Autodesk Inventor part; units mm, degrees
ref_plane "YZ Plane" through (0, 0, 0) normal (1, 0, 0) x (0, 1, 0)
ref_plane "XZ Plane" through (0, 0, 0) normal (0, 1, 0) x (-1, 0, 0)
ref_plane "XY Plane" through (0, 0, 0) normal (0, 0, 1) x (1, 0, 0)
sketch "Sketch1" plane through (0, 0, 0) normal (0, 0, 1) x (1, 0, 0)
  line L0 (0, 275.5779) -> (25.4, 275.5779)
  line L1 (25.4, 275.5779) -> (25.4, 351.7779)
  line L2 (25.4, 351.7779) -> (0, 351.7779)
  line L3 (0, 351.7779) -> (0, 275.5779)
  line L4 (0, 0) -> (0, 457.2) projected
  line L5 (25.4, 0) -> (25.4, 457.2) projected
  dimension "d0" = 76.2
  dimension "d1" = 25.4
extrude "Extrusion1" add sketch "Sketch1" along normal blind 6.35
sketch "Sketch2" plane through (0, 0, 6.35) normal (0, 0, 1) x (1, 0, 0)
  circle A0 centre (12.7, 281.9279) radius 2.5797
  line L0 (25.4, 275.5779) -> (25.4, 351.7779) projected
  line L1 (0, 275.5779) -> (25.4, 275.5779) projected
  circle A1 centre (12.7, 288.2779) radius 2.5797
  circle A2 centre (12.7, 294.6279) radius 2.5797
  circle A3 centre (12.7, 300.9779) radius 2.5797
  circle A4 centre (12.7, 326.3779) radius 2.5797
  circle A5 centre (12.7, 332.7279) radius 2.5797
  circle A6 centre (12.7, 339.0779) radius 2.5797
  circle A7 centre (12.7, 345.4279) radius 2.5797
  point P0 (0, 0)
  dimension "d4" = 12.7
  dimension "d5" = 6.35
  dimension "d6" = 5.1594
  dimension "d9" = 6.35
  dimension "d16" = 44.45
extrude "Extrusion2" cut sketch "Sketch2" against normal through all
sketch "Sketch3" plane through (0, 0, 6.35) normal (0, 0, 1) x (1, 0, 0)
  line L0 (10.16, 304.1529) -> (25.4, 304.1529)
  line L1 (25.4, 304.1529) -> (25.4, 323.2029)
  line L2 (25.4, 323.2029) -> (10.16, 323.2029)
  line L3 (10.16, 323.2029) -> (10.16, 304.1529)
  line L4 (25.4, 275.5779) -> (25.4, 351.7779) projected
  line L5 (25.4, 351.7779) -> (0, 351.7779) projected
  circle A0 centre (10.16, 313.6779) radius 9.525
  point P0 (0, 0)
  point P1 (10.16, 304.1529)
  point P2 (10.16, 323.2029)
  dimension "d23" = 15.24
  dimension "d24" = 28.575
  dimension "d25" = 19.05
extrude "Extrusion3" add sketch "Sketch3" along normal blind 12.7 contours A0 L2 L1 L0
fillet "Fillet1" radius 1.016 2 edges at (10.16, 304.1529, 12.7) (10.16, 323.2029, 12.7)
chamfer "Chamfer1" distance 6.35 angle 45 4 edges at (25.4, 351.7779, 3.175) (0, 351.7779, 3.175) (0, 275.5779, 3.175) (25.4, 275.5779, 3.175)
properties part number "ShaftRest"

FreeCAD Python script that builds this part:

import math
import FreeCAD as App
import Part
import Sketcher

V = App.Vector
Q = App.Units.Quantity


def edges_at(feature, points):
    """Names of the edges that pass closest to the given points."""
    edges = feature.Shape.Edges
    near = lambda p: min(range(len(edges)), key=lambda i: edges[i].distToShape(Part.Vertex(*p))[0])
    return sorted({f"Edge{near(p) + 1}" for p in points})


def add_polygon(sketch, points):
    """Adds a closed chain of lines whose ends are joined by coincident constraints."""
    first, n = sketch.GeometryCount, len(points)
    for a, b in zip(points, points[1:] + points[:1]):
        sketch.addGeometry(Part.LineSegment(App.Vector(*a, 0), App.Vector(*b, 0)), False)
    for i in range(n):
        sketch.addConstraint(Sketcher.Constraint("Coincident", first + i, 2, first + (i + 1) % n, 1))

doc = App.newDocument("Part")
body = doc.addObject("PartDesign::Body", "Body")

# Sketch on XY plane
sketch1 = body.newObject("Sketcher::SketchObject", "Sketch")
sketch1.AttachmentSupport = (doc.getObject("XY_Plane"), [""])
sketch1.MapMode = "FlatFace"
add_polygon(sketch1, [(0, 352), (0, 276), (25, 276), (25, 352)])  # lines 0-3
sketch1.addConstraint([
    Sketcher.Constraint("Vertical", 0),
    Sketcher.Constraint("Horizontal", 1),
    Sketcher.Constraint("Vertical", 2),
    Sketcher.Constraint("Horizontal", 3),
    Sketcher.Constraint("PointOnObject", 0, 2, -2),
    Sketcher.Constraint("DistanceX", 1, 1, 1, 2, Q("1 in")),
    Sketcher.Constraint("DistanceY", 0, 2, 0, 1, Q("3 in")),
    Sketcher.Constraint("DistanceY", -1, 1, 0, 2, Q("275.578 mm")),
])
pad1 = body.newObject("PartDesign::Pad", "Pad")
pad1.Profile = sketch1
pad1.Length = Q("0.25 in")

# Sketch on XY plane
sketch2 = body.newObject("Sketcher::SketchObject", "Sketch001")
sketch2.AttachmentSupport = (doc.getObject("XY_Plane"), [""])
sketch2.MapMode = "FlatFace"
sketch2.AttachmentOffset = App.Placement(V(0, 0, 0.25 * 25.4), App.Rotation())
sketch2.addGeometry([
    Part.Circle(V(12.7, 281.9, 0), V(0, 0, 1), 2.6),  # 0
    Part.Circle(V(12.7, 288.3, 0), V(0, 0, 1), 2.6),  # 1
    Part.Circle(V(12.7, 294.6, 0), V(0, 0, 1), 2.6),  # 2
    Part.Circle(V(12.7, 301, 0), V(0, 0, 1), 2.6),  # 3
    Part.Circle(V(12.7, 326.4, 0), V(0, 0, 1), 2.6),  # 4
    Part.Circle(V(12.7, 332.7, 0), V(0, 0, 1), 2.6),  # 5
    Part.Circle(V(12.7, 339.1, 0), V(0, 0, 1), 2.6),  # 6
    Part.Circle(V(12.7, 345.4, 0), V(0, 0, 1), 2.6),  # 7
], False)
sketch2.addConstraint([
    Sketcher.Constraint("Equal", 0, 1),
    Sketcher.Constraint("Equal", 1, 2),
    Sketcher.Constraint("Equal", 2, 3),
    Sketcher.Constraint("Equal", 3, 4),
    Sketcher.Constraint("Equal", 4, 5),
    Sketcher.Constraint("Equal", 5, 6),
    Sketcher.Constraint("Equal", 6, 7),
    Sketcher.Constraint("Vertical", 0, 3, 1, 3),
    Sketcher.Constraint("Vertical", 1, 3, 2, 3),
    Sketcher.Constraint("Vertical", 2, 3, 3, 3),
    Sketcher.Constraint("Vertical", 3, 3, 4, 3),
    Sketcher.Constraint("Vertical", 4, 3, 5, 3),
    Sketcher.Constraint("Vertical", 5, 3, 6, 3),
    Sketcher.Constraint("Vertical", 6, 3, 7, 3),
    Sketcher.Constraint("Diameter", 0, Q("0.203126 in")),
    Sketcher.Constraint("DistanceY", 3, 3, 4, 3, Q("1 in")),
    Sketcher.Constraint("DistanceX", -1, 1, 0, 3, Q("0.5 in")),
    Sketcher.Constraint("DistanceY", 0, 3, 2, 3, Q("0.5 in")),
    Sketcher.Constraint("DistanceY", 1, 3, 3, 3, Q("0.5 in")),
    Sketcher.Constraint("DistanceY", 4, 3, 6, 3, Q("0.5 in")),
    Sketcher.Constraint("DistanceY", 5, 3, 7, 3, Q("0.5 in")),
    Sketcher.Constraint("DistanceY", 0, 3, 1, 3, Q("0.25 in")),
    Sketcher.Constraint("DistanceY", 4, 3, 5, 3, Q("0.25 in")),
    Sketcher.Constraint("DistanceY", -1, 1, 0, 3, Q("281.928 mm")),
])
pocket1 = body.newObject("PartDesign::Pocket", "Pocket")
pocket1.Profile = sketch2
pocket1.Type = "ThroughAll"

# Sketch on XY plane
sketch3 = body.newObject("Sketcher::SketchObject", "Sketch002")
sketch3.AttachmentSupport = (doc.getObject("XY_Plane"), [""])
sketch3.MapMode = "FlatFace"
sketch3.AttachmentOffset = App.Placement(V(0, 0, 0.25 * 25.4), App.Rotation())
sketch3.addGeometry([
    Part.ArcOfCircle(Part.Circle(V(10, 314, 0), V(0, 0, 1), 10), math.radians(-90), math.radians(90)),
    Part.LineSegment(V(10, 304, 0), V(25, 304, 0)),
    Part.LineSegment(V(25, 304, 0), V(25, 323, 0)),
    Part.LineSegment(V(25, 323, 0), V(10, 323, 0)),
], False)
sketch3.addConstraint([
    Sketcher.Constraint("Tangent", 0, 1, 1, 1),
    Sketcher.Constraint("Coincident", 1, 2, 2, 1),
    Sketcher.Constraint("Coincident", 2, 2, 3, 1),
    Sketcher.Constraint("Tangent", 3, 2, 0, 2),
    Sketcher.Constraint("Horizontal", 1),
    Sketcher.Constraint("Vertical", 2),
    Sketcher.Constraint("Horizontal", 3),
    Sketcher.Constraint("DistanceX", 1, 1, 1, 2, Q("0.6 in")),
    Sketcher.Constraint("Radius", 0, Q("0.375 in")),
    Sketcher.Constraint("DistanceX", -1, 1, 1, 2, Q("1 in")),
    Sketcher.Constraint("DistanceY", -1, 1, 0, 3, Q("313.678 mm")),
])
pad2 = body.newObject("PartDesign::Pad", "Pad001")
pad2.Profile = sketch3
pad2.Length = Q("0.5 in")
doc.recompute()

fillet = body.newObject("PartDesign::Fillet", "Fillet")
fillet.Base = (pad2, edges_at(pad2, [(10.16, 304.153, 12.7), (10.16, 323.203, 12.7)]))
fillet.Radius = Q("0.04 in")
doc.recompute()

chamfer = body.newObject("PartDesign::Chamfer", "Chamfer")
chamfer.Base = (fillet, edges_at(fillet, [
    (25.4, 351.778, 3.175),
    (0, 351.778, 3.175),
    (0, 275.578, 3.175),
    (25.4, 275.578, 3.175),
]))
chamfer.Size = Q("0.25 in")

doc.recompute()
